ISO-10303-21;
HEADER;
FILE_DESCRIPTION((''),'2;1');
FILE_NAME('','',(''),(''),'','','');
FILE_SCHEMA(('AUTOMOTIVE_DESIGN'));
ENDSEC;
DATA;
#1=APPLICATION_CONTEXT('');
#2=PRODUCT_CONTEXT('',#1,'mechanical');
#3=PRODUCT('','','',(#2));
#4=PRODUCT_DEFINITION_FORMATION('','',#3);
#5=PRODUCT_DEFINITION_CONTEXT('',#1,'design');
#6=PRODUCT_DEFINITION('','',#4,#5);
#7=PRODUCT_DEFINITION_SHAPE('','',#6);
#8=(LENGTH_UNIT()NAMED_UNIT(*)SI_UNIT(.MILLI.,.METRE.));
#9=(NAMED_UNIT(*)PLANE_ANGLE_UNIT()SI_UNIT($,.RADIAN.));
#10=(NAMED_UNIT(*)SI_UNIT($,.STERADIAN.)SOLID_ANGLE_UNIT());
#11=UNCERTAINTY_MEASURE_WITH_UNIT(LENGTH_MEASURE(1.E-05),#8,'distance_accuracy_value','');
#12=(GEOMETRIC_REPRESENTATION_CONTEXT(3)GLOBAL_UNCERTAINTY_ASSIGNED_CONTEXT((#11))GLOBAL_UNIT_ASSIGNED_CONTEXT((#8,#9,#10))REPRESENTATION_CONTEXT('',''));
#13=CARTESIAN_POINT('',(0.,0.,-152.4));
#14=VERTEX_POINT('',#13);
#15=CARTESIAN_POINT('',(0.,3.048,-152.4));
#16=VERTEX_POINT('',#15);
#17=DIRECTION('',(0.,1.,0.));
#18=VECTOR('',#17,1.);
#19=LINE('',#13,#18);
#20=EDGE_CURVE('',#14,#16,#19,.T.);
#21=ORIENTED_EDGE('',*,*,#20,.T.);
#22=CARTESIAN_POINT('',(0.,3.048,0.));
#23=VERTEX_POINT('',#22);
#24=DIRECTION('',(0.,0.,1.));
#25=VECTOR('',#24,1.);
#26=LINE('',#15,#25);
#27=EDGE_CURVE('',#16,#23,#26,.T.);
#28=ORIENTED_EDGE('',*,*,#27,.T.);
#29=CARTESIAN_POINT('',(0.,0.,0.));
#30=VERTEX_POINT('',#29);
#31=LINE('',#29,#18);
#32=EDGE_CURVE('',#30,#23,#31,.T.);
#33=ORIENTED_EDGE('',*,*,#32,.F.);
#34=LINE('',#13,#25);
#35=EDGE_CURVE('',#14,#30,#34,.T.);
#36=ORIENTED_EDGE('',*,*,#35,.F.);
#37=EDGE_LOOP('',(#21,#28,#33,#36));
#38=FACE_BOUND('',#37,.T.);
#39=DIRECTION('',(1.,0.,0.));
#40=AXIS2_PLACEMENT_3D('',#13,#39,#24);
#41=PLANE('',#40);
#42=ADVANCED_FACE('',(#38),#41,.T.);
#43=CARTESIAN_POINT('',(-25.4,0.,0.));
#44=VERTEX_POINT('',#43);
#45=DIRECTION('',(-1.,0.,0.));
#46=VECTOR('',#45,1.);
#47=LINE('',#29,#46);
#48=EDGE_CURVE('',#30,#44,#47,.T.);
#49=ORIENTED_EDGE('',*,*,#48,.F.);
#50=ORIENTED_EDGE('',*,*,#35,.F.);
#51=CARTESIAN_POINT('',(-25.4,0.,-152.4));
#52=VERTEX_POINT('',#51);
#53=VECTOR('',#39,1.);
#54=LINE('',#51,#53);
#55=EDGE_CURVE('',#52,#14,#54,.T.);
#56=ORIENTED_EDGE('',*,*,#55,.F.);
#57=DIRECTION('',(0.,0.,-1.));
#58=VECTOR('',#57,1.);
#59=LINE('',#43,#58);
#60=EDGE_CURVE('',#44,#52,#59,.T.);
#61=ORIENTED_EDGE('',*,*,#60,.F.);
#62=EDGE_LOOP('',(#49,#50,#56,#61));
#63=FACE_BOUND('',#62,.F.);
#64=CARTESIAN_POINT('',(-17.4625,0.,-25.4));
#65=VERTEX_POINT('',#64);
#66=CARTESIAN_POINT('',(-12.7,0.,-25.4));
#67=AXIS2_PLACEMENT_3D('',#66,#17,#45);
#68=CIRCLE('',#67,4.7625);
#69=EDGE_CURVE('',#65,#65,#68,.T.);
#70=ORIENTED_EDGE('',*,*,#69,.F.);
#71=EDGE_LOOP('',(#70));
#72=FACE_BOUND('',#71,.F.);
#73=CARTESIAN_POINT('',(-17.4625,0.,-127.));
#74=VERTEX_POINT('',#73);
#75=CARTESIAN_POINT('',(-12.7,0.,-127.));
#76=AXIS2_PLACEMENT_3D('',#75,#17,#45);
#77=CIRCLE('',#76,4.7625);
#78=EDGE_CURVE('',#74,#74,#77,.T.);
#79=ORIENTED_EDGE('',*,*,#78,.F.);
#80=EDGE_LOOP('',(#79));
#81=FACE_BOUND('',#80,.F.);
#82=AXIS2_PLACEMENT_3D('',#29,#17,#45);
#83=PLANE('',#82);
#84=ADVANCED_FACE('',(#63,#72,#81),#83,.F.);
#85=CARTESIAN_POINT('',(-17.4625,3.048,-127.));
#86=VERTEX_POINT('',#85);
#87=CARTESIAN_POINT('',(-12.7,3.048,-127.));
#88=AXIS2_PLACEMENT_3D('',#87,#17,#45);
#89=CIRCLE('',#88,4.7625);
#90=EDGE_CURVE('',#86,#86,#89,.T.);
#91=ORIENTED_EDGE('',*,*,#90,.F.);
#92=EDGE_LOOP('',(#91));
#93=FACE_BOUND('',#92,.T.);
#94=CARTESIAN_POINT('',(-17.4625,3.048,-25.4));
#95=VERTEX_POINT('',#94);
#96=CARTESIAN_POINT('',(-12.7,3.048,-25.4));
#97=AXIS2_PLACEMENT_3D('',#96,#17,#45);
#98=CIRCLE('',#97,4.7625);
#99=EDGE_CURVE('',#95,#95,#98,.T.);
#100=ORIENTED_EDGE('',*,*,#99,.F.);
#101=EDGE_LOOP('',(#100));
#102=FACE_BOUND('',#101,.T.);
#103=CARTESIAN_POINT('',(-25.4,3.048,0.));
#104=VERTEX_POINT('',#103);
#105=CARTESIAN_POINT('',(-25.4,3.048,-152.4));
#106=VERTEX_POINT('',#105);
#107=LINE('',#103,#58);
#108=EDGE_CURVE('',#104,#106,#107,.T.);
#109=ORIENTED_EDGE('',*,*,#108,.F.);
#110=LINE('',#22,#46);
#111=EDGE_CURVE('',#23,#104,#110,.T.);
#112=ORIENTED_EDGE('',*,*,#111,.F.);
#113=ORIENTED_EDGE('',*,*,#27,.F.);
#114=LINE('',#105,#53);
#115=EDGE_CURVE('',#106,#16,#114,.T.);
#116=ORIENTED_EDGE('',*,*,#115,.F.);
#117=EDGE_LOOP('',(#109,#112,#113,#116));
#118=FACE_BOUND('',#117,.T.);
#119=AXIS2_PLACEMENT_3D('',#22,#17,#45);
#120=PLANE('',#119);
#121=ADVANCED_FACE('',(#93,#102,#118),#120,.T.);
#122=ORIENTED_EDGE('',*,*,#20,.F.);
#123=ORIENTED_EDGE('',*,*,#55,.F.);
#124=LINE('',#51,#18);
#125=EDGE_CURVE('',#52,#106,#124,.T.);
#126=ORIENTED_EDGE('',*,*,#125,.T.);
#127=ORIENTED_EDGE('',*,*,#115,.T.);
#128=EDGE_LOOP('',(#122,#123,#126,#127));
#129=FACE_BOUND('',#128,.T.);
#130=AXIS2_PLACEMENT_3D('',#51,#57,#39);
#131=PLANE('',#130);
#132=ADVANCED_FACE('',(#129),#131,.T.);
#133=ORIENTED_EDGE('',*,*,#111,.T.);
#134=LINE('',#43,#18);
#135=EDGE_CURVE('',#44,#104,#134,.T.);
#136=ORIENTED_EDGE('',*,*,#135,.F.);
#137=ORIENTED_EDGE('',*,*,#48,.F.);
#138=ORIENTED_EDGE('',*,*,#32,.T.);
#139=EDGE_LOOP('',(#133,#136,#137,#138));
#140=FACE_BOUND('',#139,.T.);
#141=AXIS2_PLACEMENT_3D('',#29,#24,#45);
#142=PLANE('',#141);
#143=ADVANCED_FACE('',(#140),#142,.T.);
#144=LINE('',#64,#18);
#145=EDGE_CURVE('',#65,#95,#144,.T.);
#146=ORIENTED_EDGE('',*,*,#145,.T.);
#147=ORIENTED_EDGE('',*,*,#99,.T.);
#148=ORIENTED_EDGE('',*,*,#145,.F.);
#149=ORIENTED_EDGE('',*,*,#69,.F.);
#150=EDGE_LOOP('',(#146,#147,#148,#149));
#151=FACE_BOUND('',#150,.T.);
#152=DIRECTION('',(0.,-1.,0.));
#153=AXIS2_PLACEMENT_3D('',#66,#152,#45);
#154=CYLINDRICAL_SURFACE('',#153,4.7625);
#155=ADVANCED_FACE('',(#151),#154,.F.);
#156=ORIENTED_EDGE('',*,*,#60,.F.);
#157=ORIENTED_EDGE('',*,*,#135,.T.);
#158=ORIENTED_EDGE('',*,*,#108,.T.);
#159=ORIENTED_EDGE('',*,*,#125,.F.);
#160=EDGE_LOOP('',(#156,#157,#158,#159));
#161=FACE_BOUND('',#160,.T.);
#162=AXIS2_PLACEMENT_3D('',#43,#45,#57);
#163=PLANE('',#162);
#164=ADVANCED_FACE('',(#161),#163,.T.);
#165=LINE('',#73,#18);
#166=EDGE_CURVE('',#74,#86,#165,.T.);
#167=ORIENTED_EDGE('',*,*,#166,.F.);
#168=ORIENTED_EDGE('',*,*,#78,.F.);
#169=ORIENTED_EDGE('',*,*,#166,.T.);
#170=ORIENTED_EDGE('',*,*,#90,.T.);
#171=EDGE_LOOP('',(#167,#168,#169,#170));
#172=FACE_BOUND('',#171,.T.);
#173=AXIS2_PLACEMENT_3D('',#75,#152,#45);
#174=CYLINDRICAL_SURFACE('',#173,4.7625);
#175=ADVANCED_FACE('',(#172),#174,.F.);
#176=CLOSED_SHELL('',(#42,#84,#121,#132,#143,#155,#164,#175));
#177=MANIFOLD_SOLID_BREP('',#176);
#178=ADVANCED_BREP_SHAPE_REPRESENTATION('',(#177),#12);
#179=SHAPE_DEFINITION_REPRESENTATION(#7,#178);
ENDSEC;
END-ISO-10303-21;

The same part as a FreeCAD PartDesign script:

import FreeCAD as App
import Part
import Sketcher
from FreeCAD import Vector
Q = App.Units.Quantity

doc = App.newDocument("Part")
params = doc.addObject("Spreadsheet::Sheet", "Params")
for row, (alias, value) in enumerate([
    ("sketch1_width", "1 in"),
    ("sketch1_height", "6 in"),
    ("sketch1_diameter", "0.375 in"),
    ("pad1_length", "0.12 in"),
], start=1):
    params.set(f"A{row}", alias)
    params.set(f"B{row}", "=" + value)
    params.setAlias(f"B{row}", alias)

body = doc.addObject("PartDesign::Body", "Body")

sketch1 = doc.addObject("Sketcher::SketchObject", "Sketch")
body.addObject(sketch1)
sketch1.AttachmentSupport = (doc.XZ_Plane, [""])
sketch1.MapMode = "FlatFace"
sketch1.addGeometry(Part.LineSegment(Vector(-25.4, 0, 0), Vector(0, 0, 0)), False)
sketch1.addGeometry(Part.LineSegment(Vector(0, 0, 0), Vector(0, -152.4, 0)), False)
sketch1.addGeometry(Part.LineSegment(Vector(0, -152.4, 0), Vector(-25.4, -152.4, 0)), False)
sketch1.addGeometry(Part.LineSegment(Vector(-25.4, -152.4, 0), Vector(-25.4, 0, 0)), False)
sketch1.addGeometry(Part.Circle(Vector(-12.7, -127, 0), Vector(0, 0, 1), 4.8), False)
sketch1.addGeometry(Part.Circle(Vector(-12.7, -25.4, 0), Vector(0, 0, 1), 4.8), False)
sketch1.addConstraint(Sketcher.Constraint("Coincident", 0, 2, 1, 1))
sketch1.addConstraint(Sketcher.Constraint("Coincident", 1, 2, 2, 1))
sketch1.addConstraint(Sketcher.Constraint("Coincident", 2, 2, 3, 1))
sketch1.addConstraint(Sketcher.Constraint("Coincident", 3, 2, 0, 1))
sketch1.addConstraint(Sketcher.Constraint("Horizontal", 0))
sketch1.addConstraint(Sketcher.Constraint("Vertical", 1))
sketch1.addConstraint(Sketcher.Constraint("Horizontal", 2))
sketch1.addConstraint(Sketcher.Constraint("Vertical", 3))
sketch1.addConstraint(Sketcher.Constraint("Coincident", 0, 2, -1, 1))
sketch1.addConstraint(Sketcher.Constraint("Equal", 4, 5))
sketch1.addConstraint(Sketcher.Constraint("Vertical", 4, 3, 5, 3))
sketch1.addConstraint(Sketcher.Constraint("DistanceX", 0, 1, 0, 2, Q("1 in")))
sketch1.addConstraint(Sketcher.Constraint("DistanceY", 1, 2, 1, 1, Q("6 in")))
sketch1.addConstraint(Sketcher.Constraint("Diameter", 4, Q("0.375 in")))
sketch1.addConstraint(Sketcher.Constraint("DistanceY", 5, 3, -1, 1, Q("1 in")))
sketch1.addConstraint(Sketcher.Constraint("DistanceY", 1, 2, 4, 3, Q("1 in")))
sketch1.addConstraint(Sketcher.Constraint("DistanceX", 4, 3, -1, 1, Q("0.5 in")))
sketch1.setExpression("Constraints[11]", "Params.sketch1_width")
sketch1.setExpression("Constraints[12]", "Params.sketch1_height")
sketch1.setExpression("Constraints[13]", "Params.sketch1_diameter")
pad1 = doc.addObject("PartDesign::Pad", "Pad")
body.addObject(pad1)
pad1.Profile = sketch1
pad1.setExpression("Length", "Params.pad1_length")
pad1.Reversed = True

doc.recompute()
